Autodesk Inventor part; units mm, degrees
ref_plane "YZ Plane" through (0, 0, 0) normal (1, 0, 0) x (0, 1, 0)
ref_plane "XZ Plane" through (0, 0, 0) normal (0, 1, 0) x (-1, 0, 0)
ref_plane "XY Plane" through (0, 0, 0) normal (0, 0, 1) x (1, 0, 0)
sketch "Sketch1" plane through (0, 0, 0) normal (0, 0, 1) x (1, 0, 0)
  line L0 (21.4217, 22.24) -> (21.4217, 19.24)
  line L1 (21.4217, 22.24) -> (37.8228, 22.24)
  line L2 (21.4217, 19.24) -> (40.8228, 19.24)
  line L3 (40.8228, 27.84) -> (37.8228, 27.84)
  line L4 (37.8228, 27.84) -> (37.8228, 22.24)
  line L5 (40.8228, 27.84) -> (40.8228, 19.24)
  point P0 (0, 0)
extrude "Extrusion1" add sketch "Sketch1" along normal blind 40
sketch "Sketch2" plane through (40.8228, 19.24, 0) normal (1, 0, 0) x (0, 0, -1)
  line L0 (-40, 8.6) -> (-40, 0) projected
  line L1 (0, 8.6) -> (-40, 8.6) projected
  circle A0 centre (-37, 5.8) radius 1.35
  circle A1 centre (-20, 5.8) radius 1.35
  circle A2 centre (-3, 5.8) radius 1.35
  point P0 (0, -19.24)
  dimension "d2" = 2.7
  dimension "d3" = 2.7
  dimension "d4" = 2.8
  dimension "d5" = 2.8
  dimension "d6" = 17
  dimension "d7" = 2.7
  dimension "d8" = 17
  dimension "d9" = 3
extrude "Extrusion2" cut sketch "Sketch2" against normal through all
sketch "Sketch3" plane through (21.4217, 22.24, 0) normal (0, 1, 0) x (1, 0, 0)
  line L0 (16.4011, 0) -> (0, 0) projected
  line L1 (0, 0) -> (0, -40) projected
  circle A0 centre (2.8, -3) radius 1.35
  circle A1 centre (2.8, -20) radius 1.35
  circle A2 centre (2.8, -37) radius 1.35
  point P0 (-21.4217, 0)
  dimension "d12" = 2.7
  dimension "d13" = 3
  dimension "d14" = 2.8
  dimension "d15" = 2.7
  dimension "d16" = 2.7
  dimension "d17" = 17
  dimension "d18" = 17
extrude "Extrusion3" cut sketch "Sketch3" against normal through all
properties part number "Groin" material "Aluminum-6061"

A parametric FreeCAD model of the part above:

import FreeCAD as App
import Part
import Sketcher
from FreeCAD import Vector

doc = App.newDocument("Part")
body = doc.addObject("PartDesign::Body", "Body")

sketch1 = body.newObject("Sketcher::SketchObject", "Sketch")
sketch1.AttachmentSupport = (doc.getObject("XY_Plane"), [""])
sketch1.MapMode = "FlatFace"
sketch1.addGeometry([
    Part.LineSegment(Vector(37.8, 22.2, 0), Vector(21.4, 22.2, 0)),
    Part.LineSegment(Vector(21.4, 22.2, 0), Vector(21.4, 19.2, 0)),
    Part.LineSegment(Vector(21.4, 19.2, 0), Vector(40.8, 19.2, 0)),
    Part.LineSegment(Vector(40.8, 19.2, 0), Vector(40.8, 27.8, 0)),
    Part.LineSegment(Vector(40.8, 27.8, 0), Vector(37.8, 27.8, 0)),
    Part.LineSegment(Vector(37.8, 27.8, 0), Vector(37.8, 22.2, 0)),
], False)
sketch1.addConstraint([
    Sketcher.Constraint("Coincident", 0, 2, 1, 1),
    Sketcher.Constraint("Coincident", 1, 2, 2, 1),
    Sketcher.Constraint("Coincident", 2, 2, 3, 1),
    Sketcher.Constraint("Coincident", 3, 2, 4, 1),
    Sketcher.Constraint("Coincident", 4, 2, 5, 1),
    Sketcher.Constraint("Coincident", 5, 2, 0, 1),
    Sketcher.Constraint("Horizontal", 0),
    Sketcher.Constraint("Vertical", 1),
    Sketcher.Constraint("Horizontal", 2),
    Sketcher.Constraint("Vertical", 3),
    Sketcher.Constraint("Horizontal", 4),
    Sketcher.Constraint("Vertical", 5),
    Sketcher.Constraint("Equal", 4, 1),
    Sketcher.Constraint("DistanceX", 4, 2, 4, 1, 3.0),
    Sketcher.Constraint("DistanceY", 3, 1, 3, 2, 8.6),
    Sketcher.Constraint("DistanceX", 0, 2, 0, 1, 16.401),
    Sketcher.Constraint("DistanceY", -1, 1, 0, 2, 22.24),
    Sketcher.Constraint("DistanceX", -1, 1, 0, 2, 21.4217),
])
pad1 = body.newObject("PartDesign::Pad", "Pad")
pad1.Profile = sketch1
pad1.Length = 40

sketch2 = body.newObject("Sketcher::SketchObject", "Sketch001")
sketch2.AttachmentSupport = (doc.getObject("YZ_Plane"), [""])
sketch2.MapMode = "FlatFace"
sketch2.AttachmentOffset = App.Placement(Vector(0, 0, 40.8228), App.Rotation())
sketch2.addGeometry([
    Part.Circle(Vector(25, 37, 0), Vector(0, 0, 1), 1.4),
    Part.Circle(Vector(25, 20, 0), Vector(0, 0, 1), 1.4),
    Part.Circle(Vector(25, 3, 0), Vector(0, 0, 1), 1.4),
], False)
sketch2.addConstraint([
    Sketcher.Constraint("Equal", 0, 1),
    Sketcher.Constraint("Equal", 1, 2),
    Sketcher.Constraint("Vertical", 0, 3, 1, 3),
    Sketcher.Constraint("Vertical", 1, 3, 2, 3),
    Sketcher.Constraint("Diameter", 0, 2.7),
    Sketcher.Constraint("DistanceY", -1, 1, 2, 3, 3.0),
    Sketcher.Constraint("DistanceY", 1, 3, 0, 3, 17.0),
    Sketcher.Constraint("DistanceY", 2, 3, 1, 3, 17.0),
    Sketcher.Constraint("DistanceX", -1, 1, 0, 3, 25.04),
])
pocket1 = body.newObject("PartDesign::Pocket", "Pocket")
pocket1.Profile = sketch2
pocket1.Type = "ThroughAll"

sketch3 = body.newObject("Sketcher::SketchObject", "Sketch002")
sketch3.AttachmentSupport = (doc.getObject("XZ_Plane"), [""])
sketch3.MapMode = "FlatFace"
sketch3.AttachmentOffset = App.Placement(Vector(0, 0, -22.24), App.Rotation())
sketch3.addGeometry([
    Part.Circle(Vector(24.2, 3, 0), Vector(0, 0, 1), 1.4),
    Part.Circle(Vector(24.2, 20, 0), Vector(0, 0, 1), 1.4),
    Part.Circle(Vector(24.2, 37, 0), Vector(0, 0, 1), 1.4),
], False)
sketch3.addConstraint([
    Sketcher.Constraint("Equal", 0, 1),
    Sketcher.Constraint("Equal", 1, 2),
    Sketcher.Constraint("Vertical", 0, 3, 1, 3),
    Sketcher.Constraint("Vertical", 1, 3, 2, 3),
    Sketcher.Constraint("Diameter", 0, 2.7),
    Sketcher.Constraint("DistanceY", -1, 1, 0, 3, 3.0),
    Sketcher.Constraint("DistanceY", 0, 3, 1, 3, 17.0),
    Sketcher.Constraint("DistanceY", 1, 3, 2, 3, 17.0),
    Sketcher.Constraint("DistanceX", -1, 1, 0, 3, 24.2217),
])
pocket2 = body.newObject("PartDesign::Pocket", "Pocket001")
pocket2.Profile = sketch3
pocket2.Type = "ThroughAll"
pocket2.Reversed = True

doc.recompute()
